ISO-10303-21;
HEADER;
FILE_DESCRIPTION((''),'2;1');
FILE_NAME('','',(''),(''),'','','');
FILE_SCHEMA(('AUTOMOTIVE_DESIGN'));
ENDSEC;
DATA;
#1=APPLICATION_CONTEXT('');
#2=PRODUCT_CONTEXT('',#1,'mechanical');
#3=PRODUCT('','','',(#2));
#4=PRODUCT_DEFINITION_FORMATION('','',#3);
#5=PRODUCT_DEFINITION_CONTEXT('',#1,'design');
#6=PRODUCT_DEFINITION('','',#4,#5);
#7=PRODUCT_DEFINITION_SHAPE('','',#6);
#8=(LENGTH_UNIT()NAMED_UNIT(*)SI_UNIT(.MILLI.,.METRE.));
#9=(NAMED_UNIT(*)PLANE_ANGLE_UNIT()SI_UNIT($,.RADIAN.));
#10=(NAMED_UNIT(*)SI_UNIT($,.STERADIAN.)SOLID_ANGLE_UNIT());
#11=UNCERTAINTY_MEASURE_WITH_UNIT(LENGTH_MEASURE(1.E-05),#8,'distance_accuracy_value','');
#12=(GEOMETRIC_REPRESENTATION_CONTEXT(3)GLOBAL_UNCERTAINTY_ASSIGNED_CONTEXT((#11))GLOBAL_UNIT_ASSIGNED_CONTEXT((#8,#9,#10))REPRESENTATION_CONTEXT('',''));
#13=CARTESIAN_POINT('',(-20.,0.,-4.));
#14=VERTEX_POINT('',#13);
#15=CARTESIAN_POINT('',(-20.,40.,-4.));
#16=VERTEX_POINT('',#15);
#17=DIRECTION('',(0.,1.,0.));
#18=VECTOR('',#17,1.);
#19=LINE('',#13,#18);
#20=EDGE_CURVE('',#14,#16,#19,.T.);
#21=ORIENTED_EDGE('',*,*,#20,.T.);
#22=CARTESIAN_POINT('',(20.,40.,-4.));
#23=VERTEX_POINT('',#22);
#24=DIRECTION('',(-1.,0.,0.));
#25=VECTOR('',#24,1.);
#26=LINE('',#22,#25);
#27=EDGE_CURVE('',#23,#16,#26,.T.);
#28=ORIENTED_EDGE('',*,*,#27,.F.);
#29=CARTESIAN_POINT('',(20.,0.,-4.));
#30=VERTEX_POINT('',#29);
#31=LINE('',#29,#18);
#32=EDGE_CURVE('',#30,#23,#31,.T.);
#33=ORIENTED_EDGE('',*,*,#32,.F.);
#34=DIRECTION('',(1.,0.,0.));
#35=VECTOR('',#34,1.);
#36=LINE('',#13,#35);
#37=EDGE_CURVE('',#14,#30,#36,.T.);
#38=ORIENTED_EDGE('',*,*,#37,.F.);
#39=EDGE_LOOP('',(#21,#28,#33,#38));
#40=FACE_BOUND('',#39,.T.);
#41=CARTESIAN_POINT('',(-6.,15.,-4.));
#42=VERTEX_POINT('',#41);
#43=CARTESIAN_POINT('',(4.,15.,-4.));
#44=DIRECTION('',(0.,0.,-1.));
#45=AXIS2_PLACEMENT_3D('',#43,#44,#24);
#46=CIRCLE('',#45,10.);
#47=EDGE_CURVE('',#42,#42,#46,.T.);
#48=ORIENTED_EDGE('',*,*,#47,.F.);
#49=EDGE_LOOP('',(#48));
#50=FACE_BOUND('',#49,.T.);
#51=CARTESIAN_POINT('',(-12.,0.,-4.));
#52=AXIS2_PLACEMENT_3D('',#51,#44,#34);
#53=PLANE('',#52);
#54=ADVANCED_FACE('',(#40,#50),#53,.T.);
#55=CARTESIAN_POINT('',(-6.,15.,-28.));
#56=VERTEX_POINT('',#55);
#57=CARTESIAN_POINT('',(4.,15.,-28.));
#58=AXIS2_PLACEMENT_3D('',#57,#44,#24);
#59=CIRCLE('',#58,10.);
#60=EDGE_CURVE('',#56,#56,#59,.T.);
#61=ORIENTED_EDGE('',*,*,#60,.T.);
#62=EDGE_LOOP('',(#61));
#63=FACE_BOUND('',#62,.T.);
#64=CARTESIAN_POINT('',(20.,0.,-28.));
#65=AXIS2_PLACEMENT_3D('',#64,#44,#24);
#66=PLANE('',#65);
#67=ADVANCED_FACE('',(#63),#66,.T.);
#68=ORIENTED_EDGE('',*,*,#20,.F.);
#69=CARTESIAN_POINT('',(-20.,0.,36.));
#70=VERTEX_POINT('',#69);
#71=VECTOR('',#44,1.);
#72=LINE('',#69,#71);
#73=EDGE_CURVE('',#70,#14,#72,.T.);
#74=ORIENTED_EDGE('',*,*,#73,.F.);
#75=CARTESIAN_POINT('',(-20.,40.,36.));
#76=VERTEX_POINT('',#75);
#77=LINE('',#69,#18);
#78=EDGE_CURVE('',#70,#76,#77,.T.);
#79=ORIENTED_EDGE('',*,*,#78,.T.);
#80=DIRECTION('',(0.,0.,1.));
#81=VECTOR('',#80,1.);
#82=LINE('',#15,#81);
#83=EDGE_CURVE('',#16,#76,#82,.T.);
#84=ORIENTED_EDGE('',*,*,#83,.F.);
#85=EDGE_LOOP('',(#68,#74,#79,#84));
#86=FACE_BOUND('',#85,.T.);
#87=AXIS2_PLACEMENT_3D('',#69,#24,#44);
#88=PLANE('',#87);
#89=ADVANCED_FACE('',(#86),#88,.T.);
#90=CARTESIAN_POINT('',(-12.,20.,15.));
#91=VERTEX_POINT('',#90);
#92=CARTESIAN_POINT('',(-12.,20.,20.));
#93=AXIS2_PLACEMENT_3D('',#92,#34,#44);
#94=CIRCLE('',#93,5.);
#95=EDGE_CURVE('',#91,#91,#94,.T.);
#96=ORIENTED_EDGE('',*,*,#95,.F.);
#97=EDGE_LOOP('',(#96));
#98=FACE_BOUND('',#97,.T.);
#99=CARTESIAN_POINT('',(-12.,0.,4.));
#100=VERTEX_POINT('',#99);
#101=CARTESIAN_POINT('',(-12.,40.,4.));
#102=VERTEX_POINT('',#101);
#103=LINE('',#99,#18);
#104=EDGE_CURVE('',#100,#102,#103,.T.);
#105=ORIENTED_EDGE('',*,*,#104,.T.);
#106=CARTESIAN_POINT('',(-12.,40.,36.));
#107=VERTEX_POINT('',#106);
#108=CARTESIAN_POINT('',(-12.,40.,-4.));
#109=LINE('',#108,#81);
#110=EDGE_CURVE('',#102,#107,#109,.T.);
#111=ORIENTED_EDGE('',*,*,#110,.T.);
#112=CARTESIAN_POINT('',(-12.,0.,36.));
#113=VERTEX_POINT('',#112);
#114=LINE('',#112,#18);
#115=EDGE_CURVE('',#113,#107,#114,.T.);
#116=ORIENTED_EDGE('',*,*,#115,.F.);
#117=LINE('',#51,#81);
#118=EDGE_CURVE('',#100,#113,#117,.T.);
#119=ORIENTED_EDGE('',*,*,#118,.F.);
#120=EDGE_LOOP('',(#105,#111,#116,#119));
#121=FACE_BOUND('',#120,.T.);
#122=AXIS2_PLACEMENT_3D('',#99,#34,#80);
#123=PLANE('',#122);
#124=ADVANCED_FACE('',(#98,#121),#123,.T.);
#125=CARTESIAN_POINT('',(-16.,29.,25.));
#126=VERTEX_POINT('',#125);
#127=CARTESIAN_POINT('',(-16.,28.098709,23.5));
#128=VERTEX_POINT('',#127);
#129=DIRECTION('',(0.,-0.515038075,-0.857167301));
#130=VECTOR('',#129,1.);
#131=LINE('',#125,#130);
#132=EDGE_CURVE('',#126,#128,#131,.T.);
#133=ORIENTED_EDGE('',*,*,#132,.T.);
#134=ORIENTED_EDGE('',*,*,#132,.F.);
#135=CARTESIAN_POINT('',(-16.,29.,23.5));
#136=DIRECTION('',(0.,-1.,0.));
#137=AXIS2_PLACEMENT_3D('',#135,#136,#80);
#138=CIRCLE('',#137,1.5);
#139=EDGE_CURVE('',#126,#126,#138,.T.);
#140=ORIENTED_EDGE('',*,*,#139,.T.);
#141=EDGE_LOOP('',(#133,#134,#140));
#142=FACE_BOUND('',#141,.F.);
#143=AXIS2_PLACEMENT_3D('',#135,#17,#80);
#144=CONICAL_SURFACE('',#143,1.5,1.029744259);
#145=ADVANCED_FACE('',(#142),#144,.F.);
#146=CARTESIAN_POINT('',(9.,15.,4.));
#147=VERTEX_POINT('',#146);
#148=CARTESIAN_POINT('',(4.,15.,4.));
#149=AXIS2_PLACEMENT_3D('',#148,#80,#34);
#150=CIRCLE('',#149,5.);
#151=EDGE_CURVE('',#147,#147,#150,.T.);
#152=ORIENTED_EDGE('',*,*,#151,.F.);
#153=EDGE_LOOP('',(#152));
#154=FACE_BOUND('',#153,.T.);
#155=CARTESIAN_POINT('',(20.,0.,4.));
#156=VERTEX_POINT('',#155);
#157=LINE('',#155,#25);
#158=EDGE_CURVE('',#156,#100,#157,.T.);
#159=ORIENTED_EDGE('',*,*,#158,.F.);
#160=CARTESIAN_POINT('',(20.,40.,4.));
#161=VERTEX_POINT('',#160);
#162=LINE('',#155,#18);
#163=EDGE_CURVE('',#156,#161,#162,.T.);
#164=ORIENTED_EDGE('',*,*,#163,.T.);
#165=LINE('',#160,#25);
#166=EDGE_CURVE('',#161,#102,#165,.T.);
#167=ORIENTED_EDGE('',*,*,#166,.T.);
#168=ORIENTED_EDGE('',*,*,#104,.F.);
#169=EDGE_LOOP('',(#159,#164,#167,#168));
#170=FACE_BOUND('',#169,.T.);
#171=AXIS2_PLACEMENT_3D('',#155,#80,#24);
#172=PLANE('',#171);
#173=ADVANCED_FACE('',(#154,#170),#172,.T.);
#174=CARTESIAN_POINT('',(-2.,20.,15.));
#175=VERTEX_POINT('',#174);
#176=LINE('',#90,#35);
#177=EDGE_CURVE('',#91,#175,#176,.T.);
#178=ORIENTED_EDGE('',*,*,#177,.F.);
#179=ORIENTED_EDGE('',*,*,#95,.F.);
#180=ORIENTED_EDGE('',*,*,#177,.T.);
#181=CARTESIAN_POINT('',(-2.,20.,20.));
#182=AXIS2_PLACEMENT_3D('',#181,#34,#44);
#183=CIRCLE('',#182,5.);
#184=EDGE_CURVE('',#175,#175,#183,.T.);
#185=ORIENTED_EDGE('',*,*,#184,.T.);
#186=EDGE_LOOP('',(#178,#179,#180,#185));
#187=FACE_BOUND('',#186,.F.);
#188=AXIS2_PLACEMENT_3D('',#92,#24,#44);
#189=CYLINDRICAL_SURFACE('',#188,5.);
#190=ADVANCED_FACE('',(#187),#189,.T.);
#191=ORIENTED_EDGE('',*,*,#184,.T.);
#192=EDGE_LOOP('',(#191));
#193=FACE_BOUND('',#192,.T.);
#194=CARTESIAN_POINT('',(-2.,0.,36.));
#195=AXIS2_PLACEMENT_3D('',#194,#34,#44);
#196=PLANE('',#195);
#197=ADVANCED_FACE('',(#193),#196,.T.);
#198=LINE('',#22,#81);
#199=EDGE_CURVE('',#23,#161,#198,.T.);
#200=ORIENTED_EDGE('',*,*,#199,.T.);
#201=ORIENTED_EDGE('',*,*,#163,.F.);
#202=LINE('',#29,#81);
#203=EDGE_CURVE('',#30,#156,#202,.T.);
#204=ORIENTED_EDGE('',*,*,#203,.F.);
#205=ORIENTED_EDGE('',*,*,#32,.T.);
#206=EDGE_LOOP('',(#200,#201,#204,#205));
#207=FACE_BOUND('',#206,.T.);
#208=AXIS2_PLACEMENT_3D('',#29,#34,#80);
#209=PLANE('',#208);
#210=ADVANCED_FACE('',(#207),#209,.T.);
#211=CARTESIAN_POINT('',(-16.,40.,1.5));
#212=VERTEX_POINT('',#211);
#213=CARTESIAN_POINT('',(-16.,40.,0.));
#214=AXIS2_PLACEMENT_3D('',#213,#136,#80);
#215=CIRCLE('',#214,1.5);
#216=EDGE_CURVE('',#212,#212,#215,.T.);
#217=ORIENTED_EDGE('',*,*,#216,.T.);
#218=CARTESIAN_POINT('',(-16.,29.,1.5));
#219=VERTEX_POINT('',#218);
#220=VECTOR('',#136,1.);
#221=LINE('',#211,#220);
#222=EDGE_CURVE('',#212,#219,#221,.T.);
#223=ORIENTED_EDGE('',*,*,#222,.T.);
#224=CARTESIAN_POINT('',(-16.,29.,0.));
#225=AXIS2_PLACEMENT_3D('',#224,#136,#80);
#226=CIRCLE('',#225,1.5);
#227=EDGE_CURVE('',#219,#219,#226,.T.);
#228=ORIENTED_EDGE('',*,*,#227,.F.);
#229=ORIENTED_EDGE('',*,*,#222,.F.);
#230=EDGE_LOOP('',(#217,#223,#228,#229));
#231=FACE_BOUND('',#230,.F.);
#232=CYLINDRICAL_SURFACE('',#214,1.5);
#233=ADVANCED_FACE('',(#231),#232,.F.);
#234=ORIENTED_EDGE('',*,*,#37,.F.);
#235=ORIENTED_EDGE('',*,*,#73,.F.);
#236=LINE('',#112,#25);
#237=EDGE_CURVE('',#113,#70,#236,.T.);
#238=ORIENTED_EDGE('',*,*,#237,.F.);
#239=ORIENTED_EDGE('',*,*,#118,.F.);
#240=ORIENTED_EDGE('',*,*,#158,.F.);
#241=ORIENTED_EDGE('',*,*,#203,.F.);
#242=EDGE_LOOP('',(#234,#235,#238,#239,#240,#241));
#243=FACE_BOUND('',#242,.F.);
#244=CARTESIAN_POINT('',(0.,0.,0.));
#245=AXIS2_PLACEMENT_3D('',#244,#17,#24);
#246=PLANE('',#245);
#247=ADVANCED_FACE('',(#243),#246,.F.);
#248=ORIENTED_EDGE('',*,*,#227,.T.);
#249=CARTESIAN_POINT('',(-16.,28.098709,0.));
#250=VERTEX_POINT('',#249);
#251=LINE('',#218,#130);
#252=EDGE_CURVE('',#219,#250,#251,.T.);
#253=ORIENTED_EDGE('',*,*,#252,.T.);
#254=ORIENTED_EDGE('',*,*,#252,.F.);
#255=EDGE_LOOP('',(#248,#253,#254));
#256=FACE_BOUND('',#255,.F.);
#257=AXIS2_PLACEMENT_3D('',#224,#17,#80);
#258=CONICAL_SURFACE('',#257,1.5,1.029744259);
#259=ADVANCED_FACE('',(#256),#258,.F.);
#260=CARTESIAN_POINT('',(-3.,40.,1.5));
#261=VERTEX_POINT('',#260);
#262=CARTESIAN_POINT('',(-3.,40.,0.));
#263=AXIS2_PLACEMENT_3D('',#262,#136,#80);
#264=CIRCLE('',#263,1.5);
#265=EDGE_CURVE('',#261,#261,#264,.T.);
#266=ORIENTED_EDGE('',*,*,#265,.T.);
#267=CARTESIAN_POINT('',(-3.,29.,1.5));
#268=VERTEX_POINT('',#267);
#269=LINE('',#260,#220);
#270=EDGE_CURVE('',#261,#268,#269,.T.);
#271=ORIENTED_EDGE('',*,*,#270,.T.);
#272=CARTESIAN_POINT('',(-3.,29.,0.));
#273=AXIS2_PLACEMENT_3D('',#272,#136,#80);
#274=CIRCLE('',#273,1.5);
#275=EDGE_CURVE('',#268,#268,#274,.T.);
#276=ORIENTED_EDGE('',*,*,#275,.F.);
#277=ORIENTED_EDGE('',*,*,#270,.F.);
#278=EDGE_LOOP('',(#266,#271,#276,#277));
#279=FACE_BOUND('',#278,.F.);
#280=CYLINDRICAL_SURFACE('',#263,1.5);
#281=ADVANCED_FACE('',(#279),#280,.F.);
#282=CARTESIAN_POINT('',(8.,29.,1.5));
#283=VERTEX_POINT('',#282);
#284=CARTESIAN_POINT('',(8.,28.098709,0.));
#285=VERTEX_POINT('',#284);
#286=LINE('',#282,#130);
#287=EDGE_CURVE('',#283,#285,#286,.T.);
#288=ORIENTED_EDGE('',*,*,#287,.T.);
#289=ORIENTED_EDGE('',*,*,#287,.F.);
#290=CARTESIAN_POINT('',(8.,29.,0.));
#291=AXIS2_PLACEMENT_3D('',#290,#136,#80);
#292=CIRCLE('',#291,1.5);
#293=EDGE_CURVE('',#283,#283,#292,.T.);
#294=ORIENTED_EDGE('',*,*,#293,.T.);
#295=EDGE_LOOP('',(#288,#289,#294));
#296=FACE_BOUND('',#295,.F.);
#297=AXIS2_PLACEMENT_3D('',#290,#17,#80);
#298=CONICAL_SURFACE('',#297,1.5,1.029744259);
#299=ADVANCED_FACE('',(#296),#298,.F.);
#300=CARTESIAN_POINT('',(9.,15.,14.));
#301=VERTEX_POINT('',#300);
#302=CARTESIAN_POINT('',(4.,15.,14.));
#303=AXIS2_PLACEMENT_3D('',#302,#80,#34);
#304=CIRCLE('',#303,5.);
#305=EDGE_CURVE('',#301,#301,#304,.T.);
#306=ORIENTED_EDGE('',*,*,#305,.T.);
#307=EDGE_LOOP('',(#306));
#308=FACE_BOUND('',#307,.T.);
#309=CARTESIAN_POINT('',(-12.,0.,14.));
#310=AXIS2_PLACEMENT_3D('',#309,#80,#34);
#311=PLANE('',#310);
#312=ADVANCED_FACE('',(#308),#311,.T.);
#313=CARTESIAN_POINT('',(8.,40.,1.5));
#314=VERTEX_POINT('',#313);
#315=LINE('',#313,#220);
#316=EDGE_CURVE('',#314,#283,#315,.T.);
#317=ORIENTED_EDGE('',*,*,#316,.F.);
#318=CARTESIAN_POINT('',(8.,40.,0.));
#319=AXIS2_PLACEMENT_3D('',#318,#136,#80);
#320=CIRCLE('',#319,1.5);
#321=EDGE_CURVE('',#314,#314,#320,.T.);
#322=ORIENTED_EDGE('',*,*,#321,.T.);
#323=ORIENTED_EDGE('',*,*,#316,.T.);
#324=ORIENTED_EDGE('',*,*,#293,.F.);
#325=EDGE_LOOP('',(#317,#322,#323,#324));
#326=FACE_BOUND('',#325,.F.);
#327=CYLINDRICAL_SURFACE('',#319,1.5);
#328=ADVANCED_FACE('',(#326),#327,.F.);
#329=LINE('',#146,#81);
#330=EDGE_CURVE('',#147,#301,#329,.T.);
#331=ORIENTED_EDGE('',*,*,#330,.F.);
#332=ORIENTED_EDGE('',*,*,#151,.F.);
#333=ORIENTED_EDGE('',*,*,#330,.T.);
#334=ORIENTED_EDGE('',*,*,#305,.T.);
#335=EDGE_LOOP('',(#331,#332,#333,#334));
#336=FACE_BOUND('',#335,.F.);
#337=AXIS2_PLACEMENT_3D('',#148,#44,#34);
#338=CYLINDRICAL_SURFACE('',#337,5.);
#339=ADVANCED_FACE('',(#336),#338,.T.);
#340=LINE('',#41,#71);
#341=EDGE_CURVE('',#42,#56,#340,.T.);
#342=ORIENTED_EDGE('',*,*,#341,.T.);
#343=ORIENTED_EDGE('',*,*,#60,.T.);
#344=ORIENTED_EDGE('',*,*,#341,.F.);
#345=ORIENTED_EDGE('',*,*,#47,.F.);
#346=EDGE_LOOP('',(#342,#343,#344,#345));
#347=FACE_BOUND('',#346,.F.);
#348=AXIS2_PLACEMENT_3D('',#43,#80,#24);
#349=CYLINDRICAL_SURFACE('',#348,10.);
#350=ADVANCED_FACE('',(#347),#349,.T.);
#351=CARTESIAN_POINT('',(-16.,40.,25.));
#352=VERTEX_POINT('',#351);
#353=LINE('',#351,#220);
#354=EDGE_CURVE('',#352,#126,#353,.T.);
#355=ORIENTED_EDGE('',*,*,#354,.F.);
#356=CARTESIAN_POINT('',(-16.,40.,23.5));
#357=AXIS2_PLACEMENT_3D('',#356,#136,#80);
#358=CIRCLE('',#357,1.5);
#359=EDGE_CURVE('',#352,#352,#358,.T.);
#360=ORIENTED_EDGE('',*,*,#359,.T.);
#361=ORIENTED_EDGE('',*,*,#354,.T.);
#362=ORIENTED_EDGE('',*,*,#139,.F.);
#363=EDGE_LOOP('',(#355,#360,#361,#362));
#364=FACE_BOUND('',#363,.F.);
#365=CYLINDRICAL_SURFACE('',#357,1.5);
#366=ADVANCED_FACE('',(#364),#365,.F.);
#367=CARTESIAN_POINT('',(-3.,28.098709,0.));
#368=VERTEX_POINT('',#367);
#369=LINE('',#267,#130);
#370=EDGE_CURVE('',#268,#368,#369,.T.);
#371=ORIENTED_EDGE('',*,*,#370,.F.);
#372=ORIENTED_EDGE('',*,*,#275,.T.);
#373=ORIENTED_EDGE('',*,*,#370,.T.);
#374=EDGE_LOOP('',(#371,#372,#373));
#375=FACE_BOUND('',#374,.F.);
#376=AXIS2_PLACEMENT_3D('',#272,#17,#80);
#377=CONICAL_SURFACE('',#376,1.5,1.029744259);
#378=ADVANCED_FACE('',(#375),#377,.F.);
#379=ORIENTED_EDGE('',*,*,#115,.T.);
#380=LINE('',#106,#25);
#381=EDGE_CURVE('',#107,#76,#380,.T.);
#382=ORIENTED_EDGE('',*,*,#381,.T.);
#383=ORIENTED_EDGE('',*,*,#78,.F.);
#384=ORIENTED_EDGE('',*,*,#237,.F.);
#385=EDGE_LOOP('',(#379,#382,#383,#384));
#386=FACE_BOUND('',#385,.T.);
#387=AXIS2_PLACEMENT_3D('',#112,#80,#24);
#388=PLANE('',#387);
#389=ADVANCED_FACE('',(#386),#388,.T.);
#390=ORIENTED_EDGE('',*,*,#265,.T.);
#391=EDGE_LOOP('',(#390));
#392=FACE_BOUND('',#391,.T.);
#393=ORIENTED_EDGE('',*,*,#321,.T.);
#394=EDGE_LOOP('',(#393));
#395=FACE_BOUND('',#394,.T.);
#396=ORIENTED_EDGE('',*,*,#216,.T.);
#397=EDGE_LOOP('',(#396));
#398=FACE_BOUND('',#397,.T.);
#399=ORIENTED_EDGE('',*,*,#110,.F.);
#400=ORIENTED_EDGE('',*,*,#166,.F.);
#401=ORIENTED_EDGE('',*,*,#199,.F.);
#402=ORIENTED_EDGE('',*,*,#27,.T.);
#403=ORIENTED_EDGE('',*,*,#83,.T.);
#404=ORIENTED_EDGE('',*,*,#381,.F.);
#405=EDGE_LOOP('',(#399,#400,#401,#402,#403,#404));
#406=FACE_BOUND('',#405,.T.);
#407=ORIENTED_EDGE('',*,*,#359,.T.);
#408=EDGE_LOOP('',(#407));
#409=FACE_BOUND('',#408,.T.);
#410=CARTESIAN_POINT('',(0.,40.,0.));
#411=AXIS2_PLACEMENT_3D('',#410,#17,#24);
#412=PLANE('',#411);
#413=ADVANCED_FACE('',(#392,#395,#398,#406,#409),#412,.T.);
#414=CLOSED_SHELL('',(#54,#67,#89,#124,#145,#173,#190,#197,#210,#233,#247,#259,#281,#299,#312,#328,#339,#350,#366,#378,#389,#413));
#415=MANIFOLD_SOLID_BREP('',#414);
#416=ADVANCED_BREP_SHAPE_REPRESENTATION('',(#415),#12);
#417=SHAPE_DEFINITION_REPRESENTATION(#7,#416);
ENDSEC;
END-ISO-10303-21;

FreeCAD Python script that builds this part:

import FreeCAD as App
import Part
import Sketcher

V = App.Vector


def add_polygon(sketch, points):
    """Adds a closed chain of lines whose ends are joined by coincident constraints."""
    first, n = sketch.GeometryCount, len(points)
    for a, b in zip(points, points[1:] + points[:1]):
        sketch.addGeometry(Part.LineSegment(App.Vector(*a, 0), App.Vector(*b, 0)), False)
    for i in range(n):
        sketch.addConstraint(Sketcher.Constraint("Coincident", first + i, 2, first + (i + 1) % n, 1))

doc = App.newDocument("Part")
params = doc.addObject("Spreadsheet::Sheet", "Params")
for row, (alias, value) in enumerate([
    ("sketch1_width", "40 mm"),
    ("sketch1_width2", "8 mm"),
    ("pad1_length", "40 mm"),
    ("sketch2_diameter", "3 mm"),
    ("hole_diameter", "3 mm"),
    ("hole_depth", "11 mm"),
    ("sketch3_diameter", "10 mm"),
    ("pad2_length", "10 mm"),
    ("sketch4_diameter", "10 mm"),
    ("pad3_length", "10 mm"),
    ("sketch5_diameter", "20 mm"),
    ("pad4_length", "24 mm"),
], start=1):
    params.set(f"A{row}", alias)
    params.set(f"B{row}", "=" + value)
    params.setAlias(f"B{row}", alias)

body = doc.addObject("PartDesign::Body", "Body")

sketch1 = doc.addObject("Sketcher::SketchObject", "Sketch")
body.addObject(sketch1)
sketch1.AttachmentSupport = (doc.XZ_Plane, [""])
sketch1.MapMode = "FlatFace"
add_polygon(sketch1, [(-12, 4), (20, 4), (20, -4), (-20, -4), (-20, 36), (-12, 36)])
sketch1.addConstraint(Sketcher.Constraint("Horizontal", 0))
sketch1.addConstraint(Sketcher.Constraint("Vertical", 1))
sketch1.addConstraint(Sketcher.Constraint("Horizontal", 2))
sketch1.addConstraint(Sketcher.Constraint("Vertical", 3))
sketch1.addConstraint(Sketcher.Constraint("Horizontal", 4))
sketch1.addConstraint(Sketcher.Constraint("Vertical", 5))
sketch1.addConstraint(Sketcher.Constraint("Symmetric", 0, 2, 2, 2, -1, 1))
sketch1.addConstraint(Sketcher.Constraint("Equal", 4, 1))
sketch1.addConstraint(Sketcher.Constraint("Equal", 2, 3))
sketch1.addConstraint(Sketcher.Constraint("DistanceX", 2, 2, 2, 1, 40.0))
sketch1.addConstraint(Sketcher.Constraint("DistanceX", 4, 1, 4, 2, 8.0))
sketch1.setExpression("Constraints[15]", "Params.sketch1_width")
sketch1.setExpression("Constraints[16]", "Params.sketch1_width2")
pad1 = doc.addObject("PartDesign::Pad", "Pad")
body.addObject(pad1)
pad1.Profile = sketch1
pad1.setExpression("Length", "Params.pad1_length")
pad1.Reversed = True

sketch2 = doc.addObject("Sketcher::SketchObject", "Sketch001")
body.addObject(sketch2)
sketch2.AttachmentSupport = (doc.XZ_Plane, [""])
sketch2.MapMode = "FlatFace"
sketch2.AttachmentOffset = App.Placement(V(0, 0, -40), App.Rotation())
sketch2.addGeometry(Part.Circle(V(-16, 23.5, 0), V(0, 0, 1), 1.5), False)
sketch2.addGeometry(Part.Circle(V(-16, 0, 0), V(0, 0, 1), 1.5), False)
sketch2.addGeometry(Part.Circle(V(-3, 0, 0), V(0, 0, 1), 1.5), False)
sketch2.addGeometry(Part.Circle(V(8, 0, 0), V(0, 0, 1), 1.5), False)
sketch2.addConstraint(Sketcher.Constraint("Equal", 0, 1))
sketch2.addConstraint(Sketcher.Constraint("Equal", 1, 2))
sketch2.addConstraint(Sketcher.Constraint("Equal", 2, 3))
sketch2.addConstraint(Sketcher.Constraint("PointOnObject", 1, 3, -1))
sketch2.addConstraint(Sketcher.Constraint("PointOnObject", 2, 3, -1))
sketch2.addConstraint(Sketcher.Constraint("PointOnObject", 3, 3, -1))
sketch2.addConstraint(Sketcher.Constraint("Vertical", 0, 3, 1, 3))
sketch2.addConstraint(Sketcher.Constraint("Diameter", 0, 3.0))
sketch2.addConstraint(Sketcher.Constraint("DistanceX", 0, 3, -1, 1, 16.0))
sketch2.addConstraint(Sketcher.Constraint("DistanceX", 2, 3, -1, 1, 3.0))
sketch2.addConstraint(Sketcher.Constraint("DistanceX", -1, 1, 3, 3, 8.0))
sketch2.addConstraint(Sketcher.Constraint("DistanceY", -1, 1, 0, 3, 23.5))
sketch2.setExpression("Constraints[7]", "Params.sketch2_diameter")
doc.recompute()
hole = doc.addObject("PartDesign::Hole", "Hole")
body.addObject(hole)
hole.Profile = sketch2
hole.ThreadType = "None"
hole.setExpression("Diameter", "Params.hole_diameter")
hole.DepthType = "Dimension"
hole.setExpression("Depth", "Params.hole_depth")
hole.DrillPoint = "Angled"
hole.DrillPointAngle = 118
hole.Reversed = True

sketch3 = doc.addObject("Sketcher::SketchObject", "Sketch002")
body.addObject(sketch3)
sketch3.AttachmentSupport = (doc.YZ_Plane, [""])
sketch3.MapMode = "FlatFace"
sketch3.AttachmentOffset = App.Placement(V(0, 0, -12), App.Rotation())
sketch3.addGeometry(Part.Circle(V(20, 20, 0), V(0, 0, 1), 5), False)
sketch3.addConstraint(Sketcher.Constraint("Diameter", 0, 10.0))
sketch3.addConstraint(Sketcher.Constraint("DistanceX", -1, 1, 0, 3, 20.0))
sketch3.addConstraint(Sketcher.Constraint("DistanceY", -1, 1, 0, 3, 20.0))
sketch3.setExpression("Constraints[0]", "Params.sketch3_diameter")
pad2 = doc.addObject("PartDesign::Pad", "Pad001")
body.addObject(pad2)
pad2.Profile = sketch3
pad2.setExpression("Length", "Params.pad2_length")

sketch4 = doc.addObject("Sketcher::SketchObject", "Sketch003")
body.addObject(sketch4)
sketch4.AttachmentSupport = (doc.XY_Plane, [""])
sketch4.MapMode = "FlatFace"
sketch4.AttachmentOffset = App.Placement(V(0, 0, 4), App.Rotation())
sketch4.addGeometry(Part.Circle(V(4, 15, 0), V(0, 0, 1), 5), False)
sketch4.addConstraint(Sketcher.Constraint("Diameter", 0, 10.0))
sketch4.addConstraint(Sketcher.Constraint("DistanceY", -1, 1, 0, 3, 15.0))
sketch4.addConstraint(Sketcher.Constraint("DistanceX", -1, 1, 0, 3, 4.0))
sketch4.setExpression("Constraints[0]", "Params.sketch4_diameter")
pad3 = doc.addObject("PartDesign::Pad", "Pad002")
body.addObject(pad3)
pad3.Profile = sketch4
pad3.setExpression("Length", "Params.pad3_length")

sketch5 = doc.addObject("Sketcher::SketchObject", "Sketch004")
body.addObject(sketch5)
sketch5.AttachmentSupport = (doc.XY_Plane, [""])
sketch5.MapMode = "FlatFace"
sketch5.AttachmentOffset = App.Placement(V(0, 0, -4), App.Rotation())
sketch5.addGeometry(Part.Circle(V(4, 15, 0), V(0, 0, 1), 10), False)
sketch5.addConstraint(Sketcher.Constraint("Diameter", 0, 20.0))
sketch5.addConstraint(Sketcher.Constraint("DistanceX", -1, 1, 0, 3, 4.0))
sketch5.addConstraint(Sketcher.Constraint("DistanceY", -1, 1, 0, 3, 15.0))
sketch5.setExpression("Constraints[0]", "Params.sketch5_diameter")
pad4 = doc.addObject("PartDesign::Pad", "Pad003")
body.addObject(pad4)
pad4.Profile = sketch5
pad4.setExpression("Length", "Params.pad4_length")
pad4.Reversed = True

doc.recompute()
